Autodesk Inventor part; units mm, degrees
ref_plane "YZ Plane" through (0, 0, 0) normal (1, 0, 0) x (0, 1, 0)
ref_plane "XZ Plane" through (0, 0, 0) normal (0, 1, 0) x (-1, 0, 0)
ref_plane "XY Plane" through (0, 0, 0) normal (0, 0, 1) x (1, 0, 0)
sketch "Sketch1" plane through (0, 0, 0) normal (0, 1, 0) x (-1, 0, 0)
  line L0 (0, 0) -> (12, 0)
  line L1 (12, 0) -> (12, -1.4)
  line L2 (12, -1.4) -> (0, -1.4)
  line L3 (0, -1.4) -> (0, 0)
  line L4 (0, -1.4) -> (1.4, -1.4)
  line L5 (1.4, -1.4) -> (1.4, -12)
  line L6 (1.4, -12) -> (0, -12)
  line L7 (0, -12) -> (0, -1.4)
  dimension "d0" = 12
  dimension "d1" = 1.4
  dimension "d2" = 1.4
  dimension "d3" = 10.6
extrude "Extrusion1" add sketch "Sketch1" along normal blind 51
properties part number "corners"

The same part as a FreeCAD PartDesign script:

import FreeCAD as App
import Part
import Sketcher
from FreeCAD import Vector

doc = App.newDocument("Part")
body = doc.addObject("PartDesign::Body", "Body")

sketch1 = body.newObject("Sketcher::SketchObject", "Sketch")
sketch1.AttachmentSupport = (doc.getObject("XZ_Plane"), [""])
sketch1.MapMode = "FlatFace"
sketch1.addGeometry(Part.LineSegment(Vector(-12, 0, 0), Vector(0, 0, 0)), False)
sketch1.addGeometry(Part.LineSegment(Vector(0, 0, 0), Vector(0, -12, 0)), False)
sketch1.addGeometry(Part.LineSegment(Vector(0, -12, 0), Vector(-1.4, -12, 0)), False)
sketch1.addGeometry(Part.LineSegment(Vector(-1.4, -12, 0), Vector(-1.4, -1.4, 0)), False)
sketch1.addGeometry(Part.LineSegment(Vector(-1.4, -1.4, 0), Vector(-12, -1.4, 0)), False)
sketch1.addGeometry(Part.LineSegment(Vector(-12, -1.4, 0), Vector(-12, 0, 0)), False)
sketch1.addConstraint(Sketcher.Constraint("Coincident", 0, 2, 1, 1))
sketch1.addConstraint(Sketcher.Constraint("Coincident", 1, 2, 2, 1))
sketch1.addConstraint(Sketcher.Constraint("Coincident", 2, 2, 3, 1))
sketch1.addConstraint(Sketcher.Constraint("Coincident", 3, 2, 4, 1))
sketch1.addConstraint(Sketcher.Constraint("Coincident", 4, 2, 5, 1))
sketch1.addConstraint(Sketcher.Constraint("Coincident", 5, 2, 0, 1))
sketch1.addConstraint(Sketcher.Constraint("Horizontal", 0))
sketch1.addConstraint(Sketcher.Constraint("Vertical", 1))
sketch1.addConstraint(Sketcher.Constraint("Horizontal", 2))
sketch1.addConstraint(Sketcher.Constraint("Vertical", 3))
sketch1.addConstraint(Sketcher.Constraint("Horizontal", 4))
sketch1.addConstraint(Sketcher.Constraint("Vertical", 5))
sketch1.addConstraint(Sketcher.Constraint("Coincident", 0, 2, -1, 1))
sketch1.addConstraint(Sketcher.Constraint("Equal", 0, 1))
sketch1.addConstraint(Sketcher.Constraint("Equal", 4, 3))
sketch1.addConstraint(Sketcher.Constraint("DistanceX", 0, 1, 0, 2, 12.0))
sketch1.addConstraint(Sketcher.Constraint("DistanceX", 2, 2, 2, 1, 1.4))
pad1 = body.newObject("PartDesign::Pad", "Pad")
pad1.Profile = sketch1
pad1.Length = 51
pad1.Reversed = True

doc.recompute()
